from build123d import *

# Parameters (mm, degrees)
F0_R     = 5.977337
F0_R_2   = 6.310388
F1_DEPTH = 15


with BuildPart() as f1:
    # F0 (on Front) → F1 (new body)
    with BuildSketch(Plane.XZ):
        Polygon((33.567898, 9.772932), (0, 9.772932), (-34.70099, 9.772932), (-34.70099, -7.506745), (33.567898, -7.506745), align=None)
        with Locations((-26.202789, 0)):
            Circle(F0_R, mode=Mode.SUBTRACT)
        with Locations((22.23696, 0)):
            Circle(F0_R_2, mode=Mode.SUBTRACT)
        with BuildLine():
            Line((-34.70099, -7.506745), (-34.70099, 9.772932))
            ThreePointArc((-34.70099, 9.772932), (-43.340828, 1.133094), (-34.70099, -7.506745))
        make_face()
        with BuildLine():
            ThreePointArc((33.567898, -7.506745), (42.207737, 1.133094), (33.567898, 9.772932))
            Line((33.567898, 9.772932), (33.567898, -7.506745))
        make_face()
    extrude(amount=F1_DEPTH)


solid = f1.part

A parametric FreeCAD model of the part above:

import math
import FreeCAD as App
import Part
import Sketcher

doc = App.newDocument("Part")
params = doc.addObject("Spreadsheet::Sheet", "Params")
for row, (alias, value) in enumerate([
    ("pad1_length", "15 mm"),
], start=1):
    params.set(f"A{row}", alias)
    params.set(f"B{row}", "=" + value)
    params.setAlias(f"B{row}", alias)

body = doc.addObject("PartDesign::Body", "Body")

# Sketch on XZ plane
sketch1 = body.newObject("Sketcher::SketchObject", "Sketch")
sketch1.AttachmentSupport = (doc.getObject("XZ_Plane"), [""])
sketch1.MapMode = "FlatFace"
sketch1.addGeometry(Part.LineSegment(App.Vector(34, 10, 0), App.Vector(-35, 10, 0)), False)
sketch1.addGeometry(Part.ArcOfCircle(Part.Circle(App.Vector(-35, 1, 0), App.Vector(0, 0, 1), 9), math.radians(90), math.radians(270)), False)
sketch1.addGeometry(Part.LineSegment(App.Vector(-35, -8, 0), App.Vector(34, -8, 0)), False)
sketch1.addGeometry(Part.ArcOfCircle(Part.Circle(App.Vector(34, 1, 0), App.Vector(0, 0, 1), 9), math.radians(-90), math.radians(90)), False)
sketch1.addGeometry(Part.Circle(App.Vector(-26, 0, 0), App.Vector(0, 0, 1), 6), False)
sketch1.addGeometry(Part.Circle(App.Vector(22, 0, 0), App.Vector(0, 0, 1), 6), False)
sketch1.addConstraint(Sketcher.Constraint("Tangent", 0, 2, 1, 1))
sketch1.addConstraint(Sketcher.Constraint("Tangent", 1, 2, 2, 1))
sketch1.addConstraint(Sketcher.Constraint("Tangent", 2, 2, 3, 1))
sketch1.addConstraint(Sketcher.Constraint("Tangent", 3, 2, 0, 1))
sketch1.addConstraint(Sketcher.Constraint("Horizontal", 0))
sketch1.addConstraint(Sketcher.Constraint("Horizontal", 2))
sketch1.addConstraint(Sketcher.Constraint("PointOnObject", 4, 3, -1))
sketch1.addConstraint(Sketcher.Constraint("PointOnObject", 5, 3, -1))
sketch1.addConstraint(Sketcher.Constraint("Radius", 1, 8.639838))
sketch1.addConstraint(Sketcher.Constraint("Diameter", 4, 11.954674))
sketch1.addConstraint(Sketcher.Constraint("Diameter", 5, 12.620776))
sketch1.addConstraint(Sketcher.Constraint("DistanceX", 0, 2, 0, 1, 68.268888))
sketch1.addConstraint(Sketcher.Constraint("DistanceX", -1, 1, 3, 3, 33.567898))
sketch1.addConstraint(Sketcher.Constraint("DistanceX", 1, 3, 4, 3, 8.4982))
sketch1.addConstraint(Sketcher.Constraint("DistanceX", -1, 1, 5, 3, 22.23696))
sketch1.addConstraint(Sketcher.Constraint("DistanceY", -1, 1, 3, 2, 9.772932))
pad1 = body.newObject("PartDesign::Pad", "Pad")
pad1.Profile = sketch1
pad1.setExpression("Length", "Params.pad1_length")

doc.recompute()
